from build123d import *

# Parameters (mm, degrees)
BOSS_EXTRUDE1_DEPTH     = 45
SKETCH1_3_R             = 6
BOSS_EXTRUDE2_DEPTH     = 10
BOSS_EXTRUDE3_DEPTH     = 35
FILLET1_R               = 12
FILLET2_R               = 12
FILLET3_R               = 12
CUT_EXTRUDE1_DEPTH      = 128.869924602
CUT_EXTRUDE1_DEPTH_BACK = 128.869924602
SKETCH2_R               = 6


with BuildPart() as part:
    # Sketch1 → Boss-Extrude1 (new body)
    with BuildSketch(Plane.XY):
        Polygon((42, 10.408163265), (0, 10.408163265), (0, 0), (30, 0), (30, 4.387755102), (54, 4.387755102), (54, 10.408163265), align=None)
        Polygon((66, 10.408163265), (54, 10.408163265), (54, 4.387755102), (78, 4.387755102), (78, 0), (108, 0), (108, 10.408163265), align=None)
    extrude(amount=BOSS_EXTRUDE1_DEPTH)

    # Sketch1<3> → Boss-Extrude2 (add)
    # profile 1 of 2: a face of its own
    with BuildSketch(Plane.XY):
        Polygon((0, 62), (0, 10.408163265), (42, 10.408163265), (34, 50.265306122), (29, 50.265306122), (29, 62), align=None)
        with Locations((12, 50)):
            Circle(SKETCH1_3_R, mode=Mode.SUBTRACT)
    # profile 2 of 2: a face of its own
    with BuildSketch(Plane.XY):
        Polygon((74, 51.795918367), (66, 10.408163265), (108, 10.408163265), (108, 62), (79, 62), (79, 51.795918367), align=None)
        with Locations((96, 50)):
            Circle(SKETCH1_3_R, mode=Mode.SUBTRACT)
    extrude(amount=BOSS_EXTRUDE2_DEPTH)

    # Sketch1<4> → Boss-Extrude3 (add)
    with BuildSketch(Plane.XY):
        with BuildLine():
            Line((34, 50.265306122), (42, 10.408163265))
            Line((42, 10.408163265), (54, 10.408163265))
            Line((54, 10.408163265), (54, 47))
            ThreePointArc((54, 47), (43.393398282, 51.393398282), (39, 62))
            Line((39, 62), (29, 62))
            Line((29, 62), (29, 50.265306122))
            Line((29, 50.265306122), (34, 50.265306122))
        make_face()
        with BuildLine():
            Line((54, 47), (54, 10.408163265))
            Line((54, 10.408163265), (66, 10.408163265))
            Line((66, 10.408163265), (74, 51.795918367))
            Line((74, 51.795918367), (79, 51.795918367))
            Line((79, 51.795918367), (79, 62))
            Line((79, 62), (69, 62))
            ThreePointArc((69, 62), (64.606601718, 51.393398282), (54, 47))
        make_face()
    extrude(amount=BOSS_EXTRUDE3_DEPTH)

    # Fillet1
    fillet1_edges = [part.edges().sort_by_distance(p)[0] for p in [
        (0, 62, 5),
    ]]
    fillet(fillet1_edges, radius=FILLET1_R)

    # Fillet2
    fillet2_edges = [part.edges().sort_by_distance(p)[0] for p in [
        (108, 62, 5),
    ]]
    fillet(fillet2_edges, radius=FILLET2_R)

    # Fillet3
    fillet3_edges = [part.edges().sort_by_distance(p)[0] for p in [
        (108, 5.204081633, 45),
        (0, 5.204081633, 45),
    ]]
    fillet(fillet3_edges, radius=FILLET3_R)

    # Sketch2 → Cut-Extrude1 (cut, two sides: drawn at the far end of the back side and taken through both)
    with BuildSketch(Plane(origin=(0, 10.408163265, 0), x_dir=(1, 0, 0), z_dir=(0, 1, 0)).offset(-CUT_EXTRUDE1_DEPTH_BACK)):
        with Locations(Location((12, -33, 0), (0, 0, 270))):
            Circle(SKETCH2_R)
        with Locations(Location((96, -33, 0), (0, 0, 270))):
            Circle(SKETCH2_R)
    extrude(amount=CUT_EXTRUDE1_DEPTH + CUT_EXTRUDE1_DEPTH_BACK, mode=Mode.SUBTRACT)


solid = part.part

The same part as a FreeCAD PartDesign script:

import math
import FreeCAD as App
import Part
import Sketcher

V = App.Vector
Q = App.Units.Quantity


def edges_at(feature, points):
    """Names of the edges that pass closest to the given points."""
    edges = feature.Shape.Edges
    near = lambda p: min(range(len(edges)), key=lambda i: edges[i].distToShape(Part.Vertex(*p))[0])
    return sorted({f"Edge{near(p) + 1}" for p in points})

doc = App.newDocument("Part")
body = doc.addObject("PartDesign::Body", "Body")

# Sketch on XY plane
sketch1 = body.newObject("Sketcher::SketchObject", "Sketch")
sketch1.AttachmentSupport = (doc.getObject("XY_Plane"), [""])
sketch1.MapMode = "FlatFace"
sketch1.addGeometry(Part.LineSegment(V(0, 10.4, 0), V(0, 0, 0)), False)
sketch1.addGeometry(Part.LineSegment(V(0, 0, 0), V(30, 0, 0)), False)
sketch1.addGeometry(Part.LineSegment(V(30, 0, 0), V(30, 4.4, 0)), False)
sketch1.addGeometry(Part.LineSegment(V(30, 4.4, 0), V(78, 4.4, 0)), False)
sketch1.addGeometry(Part.LineSegment(V(78, 4.4, 0), V(78, 0, 0)), False)
sketch1.addGeometry(Part.LineSegment(V(78, 0, 0), V(108, 0, 0)), False)
sketch1.addGeometry(Part.LineSegment(V(108, 0, 0), V(108, 10.4, 0)), False)
sketch1.addGeometry(Part.LineSegment(V(108, 10.4, 0), V(0, 10.4, 0)), False)
sketch1.addConstraint(Sketcher.Constraint("Coincident", 0, 2, 1, 1))
sketch1.addConstraint(Sketcher.Constraint("Coincident", 1, 2, 2, 1))
sketch1.addConstraint(Sketcher.Constraint("Coincident", 2, 2, 3, 1))
sketch1.addConstraint(Sketcher.Constraint("Coincident", 3, 2, 4, 1))
sketch1.addConstraint(Sketcher.Constraint("Coincident", 4, 2, 5, 1))
sketch1.addConstraint(Sketcher.Constraint("Coincident", 5, 2, 6, 1))
sketch1.addConstraint(Sketcher.Constraint("Coincident", 6, 2, 7, 1))
sketch1.addConstraint(Sketcher.Constraint("Coincident", 7, 2, 0, 1))
sketch1.addConstraint(Sketcher.Constraint("Vertical", 0))
sketch1.addConstraint(Sketcher.Constraint("Horizontal", 1))
sketch1.addConstraint(Sketcher.Constraint("Vertical", 2))
sketch1.addConstraint(Sketcher.Constraint("Horizontal", 3))
sketch1.addConstraint(Sketcher.Constraint("Vertical", 4))
sketch1.addConstraint(Sketcher.Constraint("Horizontal", 5))
sketch1.addConstraint(Sketcher.Constraint("Vertical", 6))
sketch1.addConstraint(Sketcher.Constraint("Horizontal", 7))
sketch1.addConstraint(Sketcher.Constraint("Coincident", 0, 2, -1, 1))
sketch1.addConstraint(Sketcher.Constraint("PointOnObject", 4, 2, -1))
sketch1.addConstraint(Sketcher.Constraint("Equal", 1, 5))
sketch1.addConstraint(Sketcher.Constraint("DistanceX", 1, 1, 1, 2, Q("30 mm")))
sketch1.addConstraint(Sketcher.Constraint("DistanceX", 3, 1, 3, 2, Q("48 mm")))
sketch1.addConstraint(Sketcher.Constraint("DistanceY", 0, 2, 0, 1, Q("10.408163 mm")))
sketch1.addConstraint(Sketcher.Constraint("DistanceY", 2, 1, 2, 2, Q("4.387755 mm")))
pad1 = body.newObject("PartDesign::Pad", "Pad")
pad1.Profile = sketch1
pad1.Length = 45

# Sketch on XY plane
sketch2 = body.newObject("Sketcher::SketchObject", "Sketch001")
sketch2.AttachmentSupport = (doc.getObject("XY_Plane"), [""])
sketch2.MapMode = "FlatFace"
sketch2.addGeometry(Part.LineSegment(V(0, 62, 0), V(0, 10, 0)), False)
sketch2.addGeometry(Part.LineSegment(V(0, 10, 0), V(42, 10, 0)), False)
sketch2.addGeometry(Part.LineSegment(V(42, 10, 0), V(34, 50, 0)), False)
sketch2.addGeometry(Part.LineSegment(V(34, 50, 0), V(29, 50, 0)), False)
sketch2.addGeometry(Part.LineSegment(V(29, 50, 0), V(29, 62, 0)), False)
sketch2.addGeometry(Part.LineSegment(V(29, 62, 0), V(0, 62, 0)), False)
sketch2.addGeometry(Part.Circle(V(12, 50, 0), V(0, 0, 1), 6), False)
sketch2.addGeometry(Part.LineSegment(V(74, 52, 0), V(66, 10, 0)), False)
sketch2.addGeometry(Part.LineSegment(V(66, 10, 0), V(108, 10, 0)), False)
sketch2.addGeometry(Part.LineSegment(V(108, 10, 0), V(108, 62, 0)), False)
sketch2.addGeometry(Part.LineSegment(V(108, 62, 0), V(79, 62, 0)), False)
sketch2.addGeometry(Part.LineSegment(V(79, 62, 0), V(79, 52, 0)), False)
sketch2.addGeometry(Part.LineSegment(V(79, 52, 0), V(74, 52, 0)), False)
sketch2.addGeometry(Part.Circle(V(96, 50, 0), V(0, 0, 1), 6), False)
sketch2.addConstraint(Sketcher.Constraint("Coincident", 0, 2, 1, 1))
sketch2.addConstraint(Sketcher.Constraint("Coincident", 1, 2, 2, 1))
sketch2.addConstraint(Sketcher.Constraint("Coincident", 2, 2, 3, 1))
sketch2.addConstraint(Sketcher.Constraint("Coincident", 3, 2, 4, 1))
sketch2.addConstraint(Sketcher.Constraint("Coincident", 4, 2, 5, 1))
sketch2.addConstraint(Sketcher.Constraint("Coincident", 5, 2, 0, 1))
sketch2.addConstraint(Sketcher.Constraint("Coincident", 7, 2, 8, 1))
sketch2.addConstraint(Sketcher.Constraint("Coincident", 8, 2, 9, 1))
sketch2.addConstraint(Sketcher.Constraint("Coincident", 9, 2, 10, 1))
sketch2.addConstraint(Sketcher.Constraint("Coincident", 10, 2, 11, 1))
sketch2.addConstraint(Sketcher.Constraint("Coincident", 11, 2, 12, 1))
sketch2.addConstraint(Sketcher.Constraint("Coincident", 12, 2, 7, 1))
sketch2.addConstraint(Sketcher.Constraint("Vertical", 0))
sketch2.addConstraint(Sketcher.Constraint("Horizontal", 1))
sketch2.addConstraint(Sketcher.Constraint("Horizontal", 3))
sketch2.addConstraint(Sketcher.Constraint("Vertical", 4))
sketch2.addConstraint(Sketcher.Constraint("Horizontal", 5))
sketch2.addConstraint(Sketcher.Constraint("Horizontal", 8))
sketch2.addConstraint(Sketcher.Constraint("Vertical", 9))
sketch2.addConstraint(Sketcher.Constraint("Horizontal", 10))
sketch2.addConstraint(Sketcher.Constraint("Vertical", 11))
sketch2.addConstraint(Sketcher.Constraint("Horizontal", 12))
sketch2.addConstraint(Sketcher.Constraint("Equal", 6, 13))
sketch2.addConstraint(Sketcher.Constraint("PointOnObject", 0, 2, -2))
sketch2.addConstraint(Sketcher.Constraint("Horizontal", 6, 3, 13, 3))
sketch2.addConstraint(Sketcher.Constraint("Horizontal", 1, 2, 7, 2))
sketch2.addConstraint(Sketcher.Constraint("Horizontal", 5, 2, 9, 2))
sketch2.addConstraint(Sketcher.Constraint("Equal", 1, 8))
sketch2.addConstraint(Sketcher.Constraint("Equal", 5, 10))
sketch2.addConstraint(Sketcher.Constraint("Equal", 3, 12))
sketch2.addConstraint(Sketcher.Constraint("Diameter", 6, Q("12 mm")))
sketch2.addConstraint(Sketcher.Constraint("DistanceX", 1, 1, 1, 2, Q("42 mm")))
sketch2.addConstraint(Sketcher.Constraint("DistanceX", 3, 2, 3, 1, Q("5 mm")))
sketch2.addConstraint(Sketcher.Constraint("DistanceX", 5, 2, 5, 1, Q("29 mm")))
sketch2.addConstraint(Sketcher.Constraint("DistanceX", -1, 1, 6, 3, Q("12 mm")))
sketch2.addConstraint(Sketcher.Constraint("DistanceY", -1, 1, 6, 3, Q("50 mm")))
sketch2.addConstraint(Sketcher.Constraint("DistanceX", -1, 1, 13, 3, Q("96 mm")))
sketch2.addConstraint(Sketcher.Constraint("DistanceY", -1, 1, 4, 2, Q("62 mm")))
sketch2.addConstraint(Sketcher.Constraint("DistanceX", -1, 1, 7, 2, Q("66 mm")))
sketch2.addConstraint(Sketcher.Constraint("Angle", 7, Q("-100.940007 deg")))
sketch2.addConstraint(Sketcher.Constraint("DistanceY", 11, 2, 11, 1, Q("10.204082 mm")))
sketch2.addConstraint(Sketcher.Constraint("DistanceY", 4, 1, 4, 2, Q("11.734694 mm")))
pad2 = body.newObject("PartDesign::Pad", "Pad001")
pad2.Profile = sketch2
pad2.Length = 10

# Sketch on XY plane
sketch3 = body.newObject("Sketcher::SketchObject", "Sketch002")
sketch3.AttachmentSupport = (doc.getObject("XY_Plane"), [""])
sketch3.MapMode = "FlatFace"
sketch3.addGeometry(Part.LineSegment(V(34, 50, 0), V(42, 10, 0)), False)
sketch3.addGeometry(Part.LineSegment(V(42, 10, 0), V(66, 10, 0)), False)
sketch3.addGeometry(Part.LineSegment(V(66, 10, 0), V(74, 52, 0)), False)
sketch3.addGeometry(Part.LineSegment(V(74, 52, 0), V(79, 52, 0)), False)
sketch3.addGeometry(Part.LineSegment(V(79, 52, 0), V(79, 62, 0)), False)
sketch3.addGeometry(Part.LineSegment(V(79, 62, 0), V(69, 62, 0)), False)
sketch3.addGeometry(Part.ArcOfCircle(Part.Circle(V(54, 62, 0), V(0, 0, 1), 15), math.radians(-90), math.radians(0)), False)
sketch3.addGeometry(Part.ArcOfCircle(Part.Circle(V(54, 62, 0), V(0, 0, 1), 15), math.radians(180), math.radians(270)), False)
sketch3.addGeometry(Part.LineSegment(V(39, 62, 0), V(29, 62, 0)), False)
sketch3.addGeometry(Part.LineSegment(V(29, 62, 0), V(29, 50, 0)), False)
sketch3.addGeometry(Part.LineSegment(V(29, 50, 0), V(34, 50, 0)), False)
sketch3.addConstraint(Sketcher.Constraint("Coincident", 0, 2, 1, 1))
sketch3.addConstraint(Sketcher.Constraint("Coincident", 1, 2, 2, 1))
sketch3.addConstraint(Sketcher.Constraint("Coincident", 2, 2, 3, 1))
sketch3.addConstraint(Sketcher.Constraint("Coincident", 3, 2, 4, 1))
sketch3.addConstraint(Sketcher.Constraint("Coincident", 4, 2, 5, 1))
sketch3.addConstraint(Sketcher.Constraint("Coincident", 5, 2, 6, 2))
sketch3.addConstraint(Sketcher.Constraint("Tangent", 6, 1, 7, 2))
sketch3.addConstraint(Sketcher.Constraint("Coincident", 7, 1, 8, 1))
sketch3.addConstraint(Sketcher.Constraint("Coincident", 8, 2, 9, 1))
sketch3.addConstraint(Sketcher.Constraint("Coincident", 9, 2, 10, 1))
sketch3.addConstraint(Sketcher.Constraint("Coincident", 10, 2, 0, 1))
sketch3.addConstraint(Sketcher.Constraint("Horizontal", 1))
sketch3.addConstraint(Sketcher.Constraint("Horizontal", 3))
sketch3.addConstraint(Sketcher.Constraint("Vertical", 4))
sketch3.addConstraint(Sketcher.Constraint("Horizontal", 5))
sketch3.addConstraint(Sketcher.Constraint("Horizontal", 8))
sketch3.addConstraint(Sketcher.Constraint("Vertical", 9))
sketch3.addConstraint(Sketcher.Constraint("Horizontal", 10))
sketch3.addConstraint(Sketcher.Constraint("Equal", 6, 7))
sketch3.addConstraint(Sketcher.Constraint("Horizontal", 7, 3, 4, 2))
sketch3.addConstraint(Sketcher.Constraint("Horizontal", 5, 2, 7, 1))
sketch3.addConstraint(Sketcher.Constraint("Vertical", 7, 3, 6, 1))
sketch3.addConstraint(Sketcher.Constraint("Equal", 5, 8))
sketch3.addConstraint(Sketcher.Constraint("Equal", 3, 10))
sketch3.addConstraint(Sketcher.Constraint("Radius", 6, Q("15 mm")))
sketch3.addConstraint(Sketcher.Constraint("DistanceX", 1, 1, 1, 2, Q("24 mm")))
sketch3.addConstraint(Sketcher.Constraint("DistanceX", 3, 1, 3, 2, Q("5 mm")))
sketch3.addConstraint(Sketcher.Constraint("DistanceX", 5, 2, 5, 1, Q("10 mm")))
sketch3.addConstraint(Sketcher.Constraint("DistanceX", -1, 1, 6, 3, Q("54 mm")))
sketch3.addConstraint(Sketcher.Constraint("DistanceY", -1, 1, 6, 3, Q("62 mm")))
sketch3.addConstraint(Sketcher.Constraint("DistanceX", -1, 1, 0, 2, Q("42 mm")))
sketch3.addConstraint(Sketcher.Constraint("Angle", 2, Q("79.059993 deg")))
sketch3.addConstraint(Sketcher.Constraint("DistanceY", 4, 1, 4, 2, Q("10.204082 mm")))
sketch3.addConstraint(Sketcher.Constraint("DistanceY", 9, 2, 9, 1, Q("11.734694 mm")))
pad3 = body.newObject("PartDesign::Pad", "Pad002")
pad3.Profile = sketch3
pad3.Length = 35
doc.recompute()

fillet = body.newObject("PartDesign::Fillet", "Fillet")
fillet.Base = (pad3, edges_at(pad3, [(0, 62, 5)]))
fillet.Radius = 12
doc.recompute()

fillet2 = body.newObject("PartDesign::Fillet", "Fillet001")
fillet2.Base = (fillet, edges_at(fillet, [(108, 62, 5)]))
fillet2.Radius = 12
doc.recompute()

fillet3 = body.newObject("PartDesign::Fillet", "Fillet002")
fillet3.Base = (fillet2, edges_at(fillet2, [(108, 5.204, 45), (0, 5.204, 45)]))
fillet3.Radius = 12

# Sketch on XZ plane
sketch4 = body.newObject("Sketcher::SketchObject", "Sketch003")
sketch4.AttachmentSupport = (doc.getObject("XZ_Plane"), [""])
sketch4.MapMode = "FlatFace"
sketch4.AttachmentOffset = App.Placement(V(0, 0, -10.408163), App.Rotation())
sketch4.addGeometry(Part.Circle(V(12, 33, 0), V(0, 0, 1), 6), False)
sketch4.addGeometry(Part.Circle(V(96, 33, 0), V(0, 0, 1), 6), False)
sketch4.addConstraint(Sketcher.Constraint("Equal", 0, 1))
sketch4.addConstraint(Sketcher.Constraint("Horizontal", 0, 3, 1, 3))
sketch4.addConstraint(Sketcher.Constraint("Diameter", 0, Q("12 mm")))
sketch4.addConstraint(Sketcher.Constraint("DistanceX", -1, 1, 0, 3, Q("12 mm")))
sketch4.addConstraint(Sketcher.Constraint("DistanceY", -1, 1, 0, 3, Q("33 mm")))
sketch4.addConstraint(Sketcher.Constraint("DistanceX", -1, 1, 1, 3, Q("96 mm")))
pocket1 = body.newObject("PartDesign::Pocket", "Pocket")
pocket1.Profile = sketch4
pocket1.Type = "ThroughAll"
pocket1.Midplane = True

doc.recompute()
